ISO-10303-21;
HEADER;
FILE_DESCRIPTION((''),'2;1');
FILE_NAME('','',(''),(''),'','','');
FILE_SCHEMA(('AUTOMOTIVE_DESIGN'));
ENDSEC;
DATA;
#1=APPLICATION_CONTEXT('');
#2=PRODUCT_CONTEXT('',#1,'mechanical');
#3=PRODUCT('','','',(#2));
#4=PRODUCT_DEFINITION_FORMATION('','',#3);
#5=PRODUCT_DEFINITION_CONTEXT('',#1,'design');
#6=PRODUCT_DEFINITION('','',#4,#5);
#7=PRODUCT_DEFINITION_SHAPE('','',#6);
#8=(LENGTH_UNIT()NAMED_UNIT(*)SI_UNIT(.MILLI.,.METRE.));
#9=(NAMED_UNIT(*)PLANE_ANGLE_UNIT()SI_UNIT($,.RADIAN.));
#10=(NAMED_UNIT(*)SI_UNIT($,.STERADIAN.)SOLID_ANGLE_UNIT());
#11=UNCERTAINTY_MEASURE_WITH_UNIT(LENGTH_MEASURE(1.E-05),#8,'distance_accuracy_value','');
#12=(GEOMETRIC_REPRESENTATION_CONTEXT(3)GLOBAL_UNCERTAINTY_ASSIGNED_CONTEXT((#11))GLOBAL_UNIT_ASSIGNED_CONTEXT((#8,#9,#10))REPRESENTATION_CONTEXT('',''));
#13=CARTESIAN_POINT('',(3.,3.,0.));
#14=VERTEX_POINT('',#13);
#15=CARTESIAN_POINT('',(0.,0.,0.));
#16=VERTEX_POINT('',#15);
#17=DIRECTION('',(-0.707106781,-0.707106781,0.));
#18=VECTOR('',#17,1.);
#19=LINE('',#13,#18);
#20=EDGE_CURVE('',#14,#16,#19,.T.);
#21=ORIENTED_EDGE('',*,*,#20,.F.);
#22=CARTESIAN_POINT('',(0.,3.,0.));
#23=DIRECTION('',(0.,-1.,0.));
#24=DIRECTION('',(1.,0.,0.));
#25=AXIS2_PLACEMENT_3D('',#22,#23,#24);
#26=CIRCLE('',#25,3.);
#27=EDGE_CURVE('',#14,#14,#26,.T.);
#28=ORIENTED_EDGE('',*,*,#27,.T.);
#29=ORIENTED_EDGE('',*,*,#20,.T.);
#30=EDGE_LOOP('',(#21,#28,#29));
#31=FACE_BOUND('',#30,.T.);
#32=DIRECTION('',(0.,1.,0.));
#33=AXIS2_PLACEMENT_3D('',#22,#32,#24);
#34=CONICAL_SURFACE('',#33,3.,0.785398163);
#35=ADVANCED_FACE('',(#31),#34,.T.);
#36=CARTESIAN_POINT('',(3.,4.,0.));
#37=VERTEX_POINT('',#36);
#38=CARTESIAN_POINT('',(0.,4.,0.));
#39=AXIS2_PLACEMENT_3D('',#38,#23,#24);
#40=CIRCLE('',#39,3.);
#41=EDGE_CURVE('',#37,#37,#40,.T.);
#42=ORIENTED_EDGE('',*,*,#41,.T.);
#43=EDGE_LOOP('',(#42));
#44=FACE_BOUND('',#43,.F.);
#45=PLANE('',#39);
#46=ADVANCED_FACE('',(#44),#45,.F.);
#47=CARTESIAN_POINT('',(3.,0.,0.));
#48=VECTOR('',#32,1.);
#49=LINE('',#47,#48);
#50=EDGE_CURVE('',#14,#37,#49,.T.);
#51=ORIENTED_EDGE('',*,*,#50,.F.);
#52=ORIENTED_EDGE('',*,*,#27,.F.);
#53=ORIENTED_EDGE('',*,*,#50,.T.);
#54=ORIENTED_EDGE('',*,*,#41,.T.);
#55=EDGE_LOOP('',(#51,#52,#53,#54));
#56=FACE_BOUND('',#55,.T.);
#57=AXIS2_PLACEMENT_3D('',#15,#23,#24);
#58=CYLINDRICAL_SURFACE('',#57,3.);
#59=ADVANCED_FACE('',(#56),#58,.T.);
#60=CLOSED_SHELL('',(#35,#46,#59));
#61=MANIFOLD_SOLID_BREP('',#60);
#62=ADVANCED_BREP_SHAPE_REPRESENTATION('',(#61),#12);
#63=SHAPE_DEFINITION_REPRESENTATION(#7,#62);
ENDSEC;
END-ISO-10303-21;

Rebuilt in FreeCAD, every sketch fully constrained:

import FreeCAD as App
import Part
import Sketcher

V = App.Vector
Q = App.Units.Quantity


def edges_at(feature, points):
    """Names of the edges that pass closest to the given points."""
    edges = feature.Shape.Edges
    near = lambda p: min(range(len(edges)), key=lambda i: edges[i].distToShape(Part.Vertex(*p))[0])
    return sorted({f"Edge{near(p) + 1}" for p in points})

doc = App.newDocument("Part")
body = doc.addObject("PartDesign::Body", "Body")

# Sketch on XZ plane
sketch1 = body.newObject("Sketcher::SketchObject", "Sketch")
sketch1.AttachmentSupport = (doc.getObject("XZ_Plane"), [""])
sketch1.MapMode = "FlatFace"
sketch1.addGeometry(Part.Circle(V(0, 0, 0), V(0, 0, 1), 3), False)
sketch1.addConstraint([
    Sketcher.Constraint("Coincident", 0, 3, -1, 1),
    Sketcher.Constraint("Diameter", 0, Q("6 mm")),
])
pad1 = body.newObject("PartDesign::Pad", "Pad")
pad1.Profile = sketch1
pad1.Length = 4
pad1.Reversed = True
doc.recompute()

chamfer = body.newObject("PartDesign::Chamfer", "Chamfer")
chamfer.Base = (pad1, edges_at(pad1, [(-3, 0, 0)]))
chamfer.Size = 3

doc.recompute()
